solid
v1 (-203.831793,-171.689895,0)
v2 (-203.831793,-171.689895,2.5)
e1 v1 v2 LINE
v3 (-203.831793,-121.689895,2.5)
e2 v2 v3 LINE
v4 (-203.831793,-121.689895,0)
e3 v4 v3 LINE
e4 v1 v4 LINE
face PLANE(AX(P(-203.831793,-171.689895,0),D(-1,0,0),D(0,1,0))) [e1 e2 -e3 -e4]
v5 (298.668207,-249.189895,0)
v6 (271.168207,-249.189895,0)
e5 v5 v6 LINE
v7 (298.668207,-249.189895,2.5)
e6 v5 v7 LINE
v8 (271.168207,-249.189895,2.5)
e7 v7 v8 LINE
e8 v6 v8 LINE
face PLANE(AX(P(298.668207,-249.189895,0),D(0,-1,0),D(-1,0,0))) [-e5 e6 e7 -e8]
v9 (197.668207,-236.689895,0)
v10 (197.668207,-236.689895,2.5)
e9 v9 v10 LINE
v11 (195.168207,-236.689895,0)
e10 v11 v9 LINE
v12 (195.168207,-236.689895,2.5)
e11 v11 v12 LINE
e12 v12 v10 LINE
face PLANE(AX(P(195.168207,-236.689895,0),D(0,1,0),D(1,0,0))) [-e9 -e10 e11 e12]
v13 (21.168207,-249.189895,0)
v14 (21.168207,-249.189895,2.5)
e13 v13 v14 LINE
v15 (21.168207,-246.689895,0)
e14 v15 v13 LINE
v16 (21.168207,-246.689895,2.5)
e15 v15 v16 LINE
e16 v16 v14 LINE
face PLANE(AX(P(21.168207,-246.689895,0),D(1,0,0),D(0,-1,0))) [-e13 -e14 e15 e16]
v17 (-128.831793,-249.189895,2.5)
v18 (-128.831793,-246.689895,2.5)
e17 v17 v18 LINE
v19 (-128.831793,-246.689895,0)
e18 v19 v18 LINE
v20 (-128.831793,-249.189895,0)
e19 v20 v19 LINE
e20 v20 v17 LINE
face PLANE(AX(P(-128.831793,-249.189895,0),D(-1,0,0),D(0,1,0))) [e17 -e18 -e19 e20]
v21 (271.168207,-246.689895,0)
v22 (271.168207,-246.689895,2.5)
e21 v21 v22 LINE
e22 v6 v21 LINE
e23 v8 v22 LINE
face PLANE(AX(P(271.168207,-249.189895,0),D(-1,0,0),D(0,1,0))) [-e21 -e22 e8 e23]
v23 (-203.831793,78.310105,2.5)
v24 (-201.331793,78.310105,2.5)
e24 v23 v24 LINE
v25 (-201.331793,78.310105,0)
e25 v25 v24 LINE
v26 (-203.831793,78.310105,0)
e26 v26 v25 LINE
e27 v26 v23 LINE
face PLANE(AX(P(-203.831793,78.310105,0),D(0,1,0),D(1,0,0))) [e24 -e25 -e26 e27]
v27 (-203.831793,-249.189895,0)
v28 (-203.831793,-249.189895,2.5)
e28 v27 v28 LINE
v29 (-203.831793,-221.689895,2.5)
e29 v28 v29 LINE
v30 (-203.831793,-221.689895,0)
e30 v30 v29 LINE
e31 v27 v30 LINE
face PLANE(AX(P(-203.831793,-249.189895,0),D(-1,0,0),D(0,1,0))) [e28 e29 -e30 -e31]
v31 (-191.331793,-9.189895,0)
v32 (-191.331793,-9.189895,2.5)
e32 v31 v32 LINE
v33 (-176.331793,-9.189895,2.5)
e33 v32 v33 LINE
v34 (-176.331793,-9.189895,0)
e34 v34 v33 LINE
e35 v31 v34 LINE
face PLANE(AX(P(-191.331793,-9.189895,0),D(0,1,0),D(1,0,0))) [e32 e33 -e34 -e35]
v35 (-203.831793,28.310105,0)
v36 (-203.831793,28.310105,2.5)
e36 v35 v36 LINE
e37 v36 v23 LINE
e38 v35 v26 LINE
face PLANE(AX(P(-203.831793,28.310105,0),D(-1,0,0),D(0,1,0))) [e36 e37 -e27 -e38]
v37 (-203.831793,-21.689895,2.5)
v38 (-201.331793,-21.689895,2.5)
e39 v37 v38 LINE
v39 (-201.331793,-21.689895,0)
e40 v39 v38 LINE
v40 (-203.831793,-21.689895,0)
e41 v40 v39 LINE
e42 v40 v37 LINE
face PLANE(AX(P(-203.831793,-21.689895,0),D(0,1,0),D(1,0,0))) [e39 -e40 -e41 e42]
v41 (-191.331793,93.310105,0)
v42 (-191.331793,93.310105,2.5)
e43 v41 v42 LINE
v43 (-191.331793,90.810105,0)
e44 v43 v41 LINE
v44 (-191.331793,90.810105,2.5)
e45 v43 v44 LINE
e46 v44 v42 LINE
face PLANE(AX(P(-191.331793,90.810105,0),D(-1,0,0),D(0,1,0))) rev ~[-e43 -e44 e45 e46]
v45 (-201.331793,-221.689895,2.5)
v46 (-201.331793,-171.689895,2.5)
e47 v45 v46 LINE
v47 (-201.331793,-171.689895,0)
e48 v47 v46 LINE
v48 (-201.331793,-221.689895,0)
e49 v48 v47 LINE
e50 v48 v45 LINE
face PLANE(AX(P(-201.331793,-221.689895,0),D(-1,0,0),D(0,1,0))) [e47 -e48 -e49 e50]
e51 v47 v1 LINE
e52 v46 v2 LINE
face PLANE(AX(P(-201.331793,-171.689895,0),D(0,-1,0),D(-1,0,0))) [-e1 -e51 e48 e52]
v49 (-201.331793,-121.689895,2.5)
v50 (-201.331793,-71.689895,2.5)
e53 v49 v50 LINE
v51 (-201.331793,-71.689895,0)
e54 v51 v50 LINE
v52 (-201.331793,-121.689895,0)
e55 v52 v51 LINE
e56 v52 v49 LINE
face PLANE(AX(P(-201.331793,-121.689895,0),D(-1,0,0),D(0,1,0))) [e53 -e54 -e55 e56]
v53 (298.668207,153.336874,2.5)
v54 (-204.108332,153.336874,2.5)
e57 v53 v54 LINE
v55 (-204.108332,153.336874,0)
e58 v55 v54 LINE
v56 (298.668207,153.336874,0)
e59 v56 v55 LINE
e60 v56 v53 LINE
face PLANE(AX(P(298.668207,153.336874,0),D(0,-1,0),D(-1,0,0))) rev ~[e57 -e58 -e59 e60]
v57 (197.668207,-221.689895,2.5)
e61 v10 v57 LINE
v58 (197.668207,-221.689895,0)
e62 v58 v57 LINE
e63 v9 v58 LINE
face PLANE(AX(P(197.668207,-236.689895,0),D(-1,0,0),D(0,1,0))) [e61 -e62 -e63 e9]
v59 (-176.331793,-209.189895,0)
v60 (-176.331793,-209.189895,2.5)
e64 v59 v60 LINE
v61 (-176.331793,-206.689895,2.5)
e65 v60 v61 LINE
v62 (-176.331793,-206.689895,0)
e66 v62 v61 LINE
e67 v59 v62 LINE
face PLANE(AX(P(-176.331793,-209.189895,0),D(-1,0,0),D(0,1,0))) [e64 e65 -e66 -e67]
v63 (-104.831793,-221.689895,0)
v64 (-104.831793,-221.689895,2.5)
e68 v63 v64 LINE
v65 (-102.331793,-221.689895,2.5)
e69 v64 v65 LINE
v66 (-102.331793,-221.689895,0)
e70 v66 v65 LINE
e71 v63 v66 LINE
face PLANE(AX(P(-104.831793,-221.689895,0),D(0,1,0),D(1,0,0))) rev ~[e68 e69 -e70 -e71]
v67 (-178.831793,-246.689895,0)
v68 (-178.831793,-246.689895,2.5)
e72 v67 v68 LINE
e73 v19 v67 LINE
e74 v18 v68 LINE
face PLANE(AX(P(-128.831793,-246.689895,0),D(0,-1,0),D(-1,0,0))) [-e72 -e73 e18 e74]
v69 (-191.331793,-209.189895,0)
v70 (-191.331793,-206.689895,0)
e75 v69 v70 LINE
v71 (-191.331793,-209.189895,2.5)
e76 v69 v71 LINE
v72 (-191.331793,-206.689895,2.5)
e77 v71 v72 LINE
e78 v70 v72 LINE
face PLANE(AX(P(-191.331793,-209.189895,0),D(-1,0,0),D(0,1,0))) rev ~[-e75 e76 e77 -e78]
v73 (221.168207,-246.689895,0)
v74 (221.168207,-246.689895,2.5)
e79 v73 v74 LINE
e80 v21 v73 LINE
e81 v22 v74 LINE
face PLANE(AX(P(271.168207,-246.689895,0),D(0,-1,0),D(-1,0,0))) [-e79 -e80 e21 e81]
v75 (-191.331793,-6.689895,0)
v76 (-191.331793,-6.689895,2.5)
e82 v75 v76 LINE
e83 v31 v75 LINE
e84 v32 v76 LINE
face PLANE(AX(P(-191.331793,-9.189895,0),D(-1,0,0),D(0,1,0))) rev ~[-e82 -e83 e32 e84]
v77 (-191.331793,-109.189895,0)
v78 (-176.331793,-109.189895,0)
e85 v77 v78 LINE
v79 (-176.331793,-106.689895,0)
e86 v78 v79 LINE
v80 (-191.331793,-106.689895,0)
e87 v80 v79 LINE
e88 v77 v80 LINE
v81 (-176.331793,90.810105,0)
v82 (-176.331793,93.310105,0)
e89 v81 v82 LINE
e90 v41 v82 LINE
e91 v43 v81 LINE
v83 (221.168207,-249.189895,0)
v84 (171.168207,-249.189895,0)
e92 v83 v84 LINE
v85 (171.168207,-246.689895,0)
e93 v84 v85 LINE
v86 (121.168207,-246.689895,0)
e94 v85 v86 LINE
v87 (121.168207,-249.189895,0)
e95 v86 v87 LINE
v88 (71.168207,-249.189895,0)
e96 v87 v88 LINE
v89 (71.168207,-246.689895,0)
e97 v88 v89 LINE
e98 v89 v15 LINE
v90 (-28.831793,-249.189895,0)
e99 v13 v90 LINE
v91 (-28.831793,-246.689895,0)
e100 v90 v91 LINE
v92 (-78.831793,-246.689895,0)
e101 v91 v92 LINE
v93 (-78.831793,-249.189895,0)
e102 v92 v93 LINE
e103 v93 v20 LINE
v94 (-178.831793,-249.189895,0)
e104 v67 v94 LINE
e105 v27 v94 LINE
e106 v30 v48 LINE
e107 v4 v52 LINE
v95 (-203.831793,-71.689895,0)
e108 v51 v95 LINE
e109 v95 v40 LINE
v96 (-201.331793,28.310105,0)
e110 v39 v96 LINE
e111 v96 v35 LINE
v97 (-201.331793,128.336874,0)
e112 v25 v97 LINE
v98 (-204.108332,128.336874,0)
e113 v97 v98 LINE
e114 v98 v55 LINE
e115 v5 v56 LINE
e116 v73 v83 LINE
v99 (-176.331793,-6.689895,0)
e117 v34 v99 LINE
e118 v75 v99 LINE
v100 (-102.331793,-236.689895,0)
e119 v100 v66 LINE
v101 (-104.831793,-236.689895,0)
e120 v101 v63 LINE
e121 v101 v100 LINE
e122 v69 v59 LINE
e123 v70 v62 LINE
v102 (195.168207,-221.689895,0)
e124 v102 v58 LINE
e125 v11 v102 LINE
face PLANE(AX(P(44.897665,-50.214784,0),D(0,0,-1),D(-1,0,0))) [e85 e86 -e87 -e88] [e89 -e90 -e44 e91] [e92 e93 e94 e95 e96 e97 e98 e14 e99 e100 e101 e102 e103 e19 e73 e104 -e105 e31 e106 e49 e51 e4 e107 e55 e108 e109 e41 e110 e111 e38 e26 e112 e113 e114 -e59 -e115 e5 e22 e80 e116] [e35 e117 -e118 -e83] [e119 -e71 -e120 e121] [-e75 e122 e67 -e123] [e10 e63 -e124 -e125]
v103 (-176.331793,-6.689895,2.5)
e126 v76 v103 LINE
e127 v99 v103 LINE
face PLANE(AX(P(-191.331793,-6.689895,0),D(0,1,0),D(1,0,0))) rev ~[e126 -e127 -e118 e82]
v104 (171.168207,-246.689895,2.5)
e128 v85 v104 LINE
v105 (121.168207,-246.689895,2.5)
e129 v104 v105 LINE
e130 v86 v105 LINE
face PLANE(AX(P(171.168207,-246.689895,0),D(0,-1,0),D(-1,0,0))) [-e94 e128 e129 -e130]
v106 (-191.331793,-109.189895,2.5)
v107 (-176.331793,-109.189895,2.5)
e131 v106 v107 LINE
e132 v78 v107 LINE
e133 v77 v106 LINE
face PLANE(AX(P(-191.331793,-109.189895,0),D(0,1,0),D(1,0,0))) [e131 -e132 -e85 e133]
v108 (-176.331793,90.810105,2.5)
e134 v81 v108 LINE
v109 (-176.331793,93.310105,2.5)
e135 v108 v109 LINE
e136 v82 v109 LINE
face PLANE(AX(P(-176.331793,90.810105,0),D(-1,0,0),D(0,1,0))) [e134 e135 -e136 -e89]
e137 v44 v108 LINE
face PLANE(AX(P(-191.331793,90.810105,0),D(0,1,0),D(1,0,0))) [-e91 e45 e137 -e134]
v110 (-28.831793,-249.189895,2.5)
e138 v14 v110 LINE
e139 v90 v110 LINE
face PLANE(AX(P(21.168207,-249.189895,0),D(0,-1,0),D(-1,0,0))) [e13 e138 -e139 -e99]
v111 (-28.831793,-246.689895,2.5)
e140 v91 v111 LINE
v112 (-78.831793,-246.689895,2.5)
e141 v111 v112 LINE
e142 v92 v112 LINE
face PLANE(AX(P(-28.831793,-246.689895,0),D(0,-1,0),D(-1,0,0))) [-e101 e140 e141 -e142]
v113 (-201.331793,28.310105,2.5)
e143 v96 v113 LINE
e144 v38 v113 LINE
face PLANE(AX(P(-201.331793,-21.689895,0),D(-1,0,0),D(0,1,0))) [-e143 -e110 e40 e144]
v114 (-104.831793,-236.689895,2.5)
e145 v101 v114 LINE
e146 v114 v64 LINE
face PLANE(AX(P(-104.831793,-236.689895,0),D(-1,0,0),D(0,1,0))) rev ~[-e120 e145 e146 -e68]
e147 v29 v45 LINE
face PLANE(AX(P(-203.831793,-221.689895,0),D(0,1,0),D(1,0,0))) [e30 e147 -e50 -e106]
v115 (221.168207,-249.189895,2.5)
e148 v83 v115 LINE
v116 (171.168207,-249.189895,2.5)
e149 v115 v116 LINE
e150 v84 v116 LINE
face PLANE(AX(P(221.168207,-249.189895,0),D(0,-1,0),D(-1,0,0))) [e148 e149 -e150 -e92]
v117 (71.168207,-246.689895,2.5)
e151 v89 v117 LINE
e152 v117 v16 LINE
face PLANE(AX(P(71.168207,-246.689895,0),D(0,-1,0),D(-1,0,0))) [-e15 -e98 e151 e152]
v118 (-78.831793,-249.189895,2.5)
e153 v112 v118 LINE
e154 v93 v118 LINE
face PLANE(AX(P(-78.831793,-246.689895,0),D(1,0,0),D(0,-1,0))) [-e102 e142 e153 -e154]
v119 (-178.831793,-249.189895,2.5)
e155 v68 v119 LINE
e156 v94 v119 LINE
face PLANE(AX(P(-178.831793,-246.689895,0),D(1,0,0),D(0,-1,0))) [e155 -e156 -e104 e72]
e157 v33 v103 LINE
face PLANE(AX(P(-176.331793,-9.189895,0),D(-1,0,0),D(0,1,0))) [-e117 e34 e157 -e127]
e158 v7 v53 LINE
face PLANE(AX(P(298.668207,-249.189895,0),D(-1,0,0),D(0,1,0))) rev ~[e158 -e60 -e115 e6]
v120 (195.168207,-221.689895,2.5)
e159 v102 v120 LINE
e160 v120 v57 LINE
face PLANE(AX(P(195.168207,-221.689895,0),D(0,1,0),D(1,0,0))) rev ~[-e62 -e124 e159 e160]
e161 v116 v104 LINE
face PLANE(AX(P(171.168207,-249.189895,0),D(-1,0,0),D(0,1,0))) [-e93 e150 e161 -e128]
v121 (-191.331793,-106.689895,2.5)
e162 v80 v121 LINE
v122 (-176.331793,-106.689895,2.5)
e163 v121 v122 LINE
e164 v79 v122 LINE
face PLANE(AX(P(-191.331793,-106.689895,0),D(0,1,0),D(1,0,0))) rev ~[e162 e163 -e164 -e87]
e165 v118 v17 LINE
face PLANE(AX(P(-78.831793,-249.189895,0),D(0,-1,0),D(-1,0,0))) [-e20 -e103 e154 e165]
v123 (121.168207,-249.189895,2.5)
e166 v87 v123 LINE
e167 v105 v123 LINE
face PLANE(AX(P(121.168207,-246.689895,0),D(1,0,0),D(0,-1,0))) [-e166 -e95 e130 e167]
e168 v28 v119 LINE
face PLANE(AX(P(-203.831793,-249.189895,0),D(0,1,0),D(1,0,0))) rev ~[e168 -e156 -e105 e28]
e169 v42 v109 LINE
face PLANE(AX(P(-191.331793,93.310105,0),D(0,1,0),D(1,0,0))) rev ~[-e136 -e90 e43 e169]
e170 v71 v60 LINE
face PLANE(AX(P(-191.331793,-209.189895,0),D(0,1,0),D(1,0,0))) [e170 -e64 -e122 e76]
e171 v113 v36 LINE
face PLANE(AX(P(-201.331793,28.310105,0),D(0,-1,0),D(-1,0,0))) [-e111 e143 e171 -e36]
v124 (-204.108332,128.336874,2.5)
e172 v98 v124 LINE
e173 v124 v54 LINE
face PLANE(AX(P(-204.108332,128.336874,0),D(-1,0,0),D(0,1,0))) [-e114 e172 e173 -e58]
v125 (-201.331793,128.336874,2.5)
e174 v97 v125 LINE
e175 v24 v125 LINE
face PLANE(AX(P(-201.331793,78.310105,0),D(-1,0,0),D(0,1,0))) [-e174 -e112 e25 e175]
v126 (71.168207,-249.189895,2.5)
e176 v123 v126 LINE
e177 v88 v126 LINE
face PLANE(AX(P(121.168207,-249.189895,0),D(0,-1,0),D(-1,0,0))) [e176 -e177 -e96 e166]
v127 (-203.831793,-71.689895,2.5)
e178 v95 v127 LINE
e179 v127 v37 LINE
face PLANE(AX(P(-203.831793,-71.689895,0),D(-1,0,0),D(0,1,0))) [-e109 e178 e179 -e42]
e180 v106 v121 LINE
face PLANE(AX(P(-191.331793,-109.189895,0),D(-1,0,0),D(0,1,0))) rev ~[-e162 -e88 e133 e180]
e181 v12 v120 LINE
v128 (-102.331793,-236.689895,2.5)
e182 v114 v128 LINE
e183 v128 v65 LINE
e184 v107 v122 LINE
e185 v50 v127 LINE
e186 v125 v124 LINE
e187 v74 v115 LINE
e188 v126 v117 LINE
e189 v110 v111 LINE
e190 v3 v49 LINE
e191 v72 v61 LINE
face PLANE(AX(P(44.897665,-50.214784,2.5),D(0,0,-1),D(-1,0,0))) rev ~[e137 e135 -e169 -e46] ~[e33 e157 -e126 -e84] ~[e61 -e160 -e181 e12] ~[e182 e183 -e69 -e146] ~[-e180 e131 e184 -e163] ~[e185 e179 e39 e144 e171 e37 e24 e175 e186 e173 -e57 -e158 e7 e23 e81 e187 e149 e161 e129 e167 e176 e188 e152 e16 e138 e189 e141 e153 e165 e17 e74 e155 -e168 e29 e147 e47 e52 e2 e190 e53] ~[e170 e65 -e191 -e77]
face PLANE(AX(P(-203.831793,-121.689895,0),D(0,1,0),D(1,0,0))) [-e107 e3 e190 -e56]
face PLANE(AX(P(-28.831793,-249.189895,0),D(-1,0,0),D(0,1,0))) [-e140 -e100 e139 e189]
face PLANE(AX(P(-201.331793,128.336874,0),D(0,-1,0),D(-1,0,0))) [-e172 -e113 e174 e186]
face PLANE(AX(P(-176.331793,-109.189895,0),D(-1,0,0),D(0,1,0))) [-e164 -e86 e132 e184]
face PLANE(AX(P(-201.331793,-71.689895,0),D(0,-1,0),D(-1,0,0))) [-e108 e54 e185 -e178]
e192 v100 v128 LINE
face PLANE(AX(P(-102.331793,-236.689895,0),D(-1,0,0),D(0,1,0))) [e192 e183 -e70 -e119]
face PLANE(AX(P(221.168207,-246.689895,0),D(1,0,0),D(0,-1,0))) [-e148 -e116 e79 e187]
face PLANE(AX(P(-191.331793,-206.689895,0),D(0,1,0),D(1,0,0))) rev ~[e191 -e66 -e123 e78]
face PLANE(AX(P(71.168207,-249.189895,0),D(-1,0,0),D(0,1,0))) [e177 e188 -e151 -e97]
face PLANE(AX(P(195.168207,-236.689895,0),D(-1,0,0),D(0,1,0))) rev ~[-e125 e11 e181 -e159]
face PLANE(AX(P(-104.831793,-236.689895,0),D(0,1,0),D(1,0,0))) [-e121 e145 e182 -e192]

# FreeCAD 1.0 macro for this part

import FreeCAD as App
import Part
import Sketcher


def add_polygon(sketch, points):
    """Adds a closed chain of lines whose ends are joined by coincident constraints."""
    first, n = sketch.GeometryCount, len(points)
    for a, b in zip(points, points[1:] + points[:1]):
        sketch.addGeometry(Part.LineSegment(App.Vector(*a, 0), App.Vector(*b, 0)), False)
    for i in range(n):
        sketch.addConstraint(Sketcher.Constraint("Coincident", first + i, 2, first + (i + 1) % n, 1))

doc = App.newDocument("Part")
body = doc.addObject("PartDesign::Body", "Body")

sketch1 = body.newObject("Sketcher::SketchObject", "Sketch")
sketch1.AttachmentSupport = (doc.getObject("XY_Plane"), [""])
sketch1.MapMode = "FlatFace"
add_polygon(sketch1, [(298.7, 153.3), (-204.1, 153.3), (-204.1, 128.3), (-201.3, 128.3), (-201.3, 78.3), (-203.8, 78.3), (-203.8, 28.3), (-201.3, 28.3), (-201.3, -21.7), (-203.8, -21.7), (-203.8, -71.7), (-201.3, -71.7), (-201.3, -121.7), (-203.8, -121.7), (-203.8, -171.7), (-201.3, -171.7), (-201.3, -221.7), (-203.8, -221.7), (-203.8, -249.2), (-178.8, -249.2), (-178.8, -246.7), (-128.8, -246.7), (-128.8, -249.2), (-78.8, -249.2), (-78.8, -246.7), (-28.8, -246.7), (-28.8, -249.2), (21.2, -249.2), (21.2, -246.7), (71.2, -246.7), (71.2, -249.2), (121.2, -249.2), (121.2, -246.7), (171.2, -246.7), (171.2, -249.2), (221.2, -249.2), (221.2, -246.7), (271.2, -246.7), (271.2, -249.2), (298.7, -249.2)])
add_polygon(sketch1, [(195.2, -236.7), (195.2, -221.7), (197.7, -221.7), (197.7, -236.7)])
add_polygon(sketch1, [(-104.8, -236.7), (-104.8, -221.7), (-102.3, -221.7), (-102.3, -236.7)])
add_polygon(sketch1, [(-191.3, -209.2), (-191.3, -206.7), (-176.3, -206.7), (-176.3, -209.2)])
add_polygon(sketch1, [(-191.3, -109.2), (-191.3, -106.7), (-176.3, -106.7), (-176.3, -109.2)])
add_polygon(sketch1, [(-191.3, -9.2), (-191.3, -6.7), (-176.3, -6.7), (-176.3, -9.2)])
add_polygon(sketch1, [(-191.3, 90.8), (-191.3, 93.3), (-176.3, 93.3), (-176.3, 90.8)])
sketch1.addConstraint(Sketcher.Constraint("Horizontal", 0))
sketch1.addConstraint(Sketcher.Constraint("Vertical", 1))
sketch1.addConstraint(Sketcher.Constraint("Horizontal", 2))
sketch1.addConstraint(Sketcher.Constraint("Vertical", 3))
sketch1.addConstraint(Sketcher.Constraint("Horizontal", 4))
sketch1.addConstraint(Sketcher.Constraint("Vertical", 5))
sketch1.addConstraint(Sketcher.Constraint("Horizontal", 6))
sketch1.addConstraint(Sketcher.Constraint("Vertical", 7))
sketch1.addConstraint(Sketcher.Constraint("Horizontal", 8))
sketch1.addConstraint(Sketcher.Constraint("Vertical", 9))
sketch1.addConstraint(Sketcher.Constraint("Horizontal", 10))
sketch1.addConstraint(Sketcher.Constraint("Vertical", 11))
sketch1.addConstraint(Sketcher.Constraint("Horizontal", 12))
sketch1.addConstraint(Sketcher.Constraint("Vertical", 13))
sketch1.addConstraint(Sketcher.Constraint("Horizontal", 14))
sketch1.addConstraint(Sketcher.Constraint("Vertical", 15))
sketch1.addConstraint(Sketcher.Constraint("Horizontal", 16))
sketch1.addConstraint(Sketcher.Constraint("Vertical", 17))
sketch1.addConstraint(Sketcher.Constraint("Horizontal", 18))
sketch1.addConstraint(Sketcher.Constraint("Vertical", 19))
sketch1.addConstraint(Sketcher.Constraint("Horizontal", 20))
sketch1.addConstraint(Sketcher.Constraint("Vertical", 21))
sketch1.addConstraint(Sketcher.Constraint("Horizontal", 22))
sketch1.addConstraint(Sketcher.Constraint("Vertical", 23))
sketch1.addConstraint(Sketcher.Constraint("Horizontal", 24))
sketch1.addConstraint(Sketcher.Constraint("Vertical", 25))
sketch1.addConstraint(Sketcher.Constraint("Horizontal", 26))
sketch1.addConstraint(Sketcher.Constraint("Vertical", 27))
sketch1.addConstraint(Sketcher.Constraint("Horizontal", 28))
sketch1.addConstraint(Sketcher.Constraint("Vertical", 29))
sketch1.addConstraint(Sketcher.Constraint("Horizontal", 30))
sketch1.addConstraint(Sketcher.Constraint("Vertical", 31))
sketch1.addConstraint(Sketcher.Constraint("Horizontal", 32))
sketch1.addConstraint(Sketcher.Constraint("Vertical", 33))
sketch1.addConstraint(Sketcher.Constraint("Horizontal", 34))
sketch1.addConstraint(Sketcher.Constraint("Vertical", 35))
sketch1.addConstraint(Sketcher.Constraint("Horizontal", 36))
sketch1.addConstraint(Sketcher.Constraint("Vertical", 37))
sketch1.addConstraint(Sketcher.Constraint("Horizontal", 38))
sketch1.addConstraint(Sketcher.Constraint("Vertical", 39))
sketch1.addConstraint(Sketcher.Constraint("Vertical", 40))
sketch1.addConstraint(Sketcher.Constraint("Horizontal", 41))
sketch1.addConstraint(Sketcher.Constraint("Vertical", 42))
sketch1.addConstraint(Sketcher.Constraint("Horizontal", 43))
sketch1.addConstraint(Sketcher.Constraint("Vertical", 44))
sketch1.addConstraint(Sketcher.Constraint("Horizontal", 45))
sketch1.addConstraint(Sketcher.Constraint("Vertical", 46))
sketch1.addConstraint(Sketcher.Constraint("Horizontal", 47))
sketch1.addConstraint(Sketcher.Constraint("Vertical", 48))
sketch1.addConstraint(Sketcher.Constraint("Horizontal", 49))
sketch1.addConstraint(Sketcher.Constraint("Vertical", 50))
sketch1.addConstraint(Sketcher.Constraint("Horizontal", 51))
sketch1.addConstraint(Sketcher.Constraint("Vertical", 52))
sketch1.addConstraint(Sketcher.Constraint("Horizontal", 53))
sketch1.addConstraint(Sketcher.Constraint("Vertical", 54))
sketch1.addConstraint(Sketcher.Constraint("Horizontal", 55))
sketch1.addConstraint(Sketcher.Constraint("Vertical", 56))
sketch1.addConstraint(Sketcher.Constraint("Horizontal", 57))
sketch1.addConstraint(Sketcher.Constraint("Vertical", 58))
sketch1.addConstraint(Sketcher.Constraint("Horizontal", 59))
sketch1.addConstraint(Sketcher.Constraint("Vertical", 60))
sketch1.addConstraint(Sketcher.Constraint("Horizontal", 61))
sketch1.addConstraint(Sketcher.Constraint("Vertical", 62))
sketch1.addConstraint(Sketcher.Constraint("Horizontal", 63))
sketch1.addConstraint(Sketcher.Constraint("Horizontal", 18, 2, 21, 2))
sketch1.addConstraint(Sketcher.Constraint("Horizontal", 20, 2, 23, 2))
sketch1.addConstraint(Sketcher.Constraint("Horizontal", 22, 2, 25, 2))
sketch1.addConstraint(Sketcher.Constraint("Horizontal", 24, 2, 27, 2))
sketch1.addConstraint(Sketcher.Constraint("Horizontal", 26, 2, 29, 2))
sketch1.addConstraint(Sketcher.Constraint("Horizontal", 28, 2, 31, 2))
sketch1.addConstraint(Sketcher.Constraint("Horizontal", 30, 2, 33, 2))
sketch1.addConstraint(Sketcher.Constraint("Horizontal", 32, 2, 35, 2))
sketch1.addConstraint(Sketcher.Constraint("Horizontal", 34, 2, 37, 2))
sketch1.addConstraint(Sketcher.Constraint("Horizontal", 16, 2, 40, 2))
sketch1.addConstraint(Sketcher.Constraint("Horizontal", 41, 2, 44, 2))
sketch1.addConstraint(Sketcher.Constraint("Horizontal", 43, 2, 46, 2))
sketch1.addConstraint(Sketcher.Constraint("Vertical", 3, 2, 6, 2))
sketch1.addConstraint(Sketcher.Constraint("Vertical", 5, 2, 8, 2))
sketch1.addConstraint(Sketcher.Constraint("Vertical", 7, 2, 10, 2))
sketch1.addConstraint(Sketcher.Constraint("Vertical", 9, 2, 12, 2))
sketch1.addConstraint(Sketcher.Constraint("Vertical", 11, 2, 14, 2))
sketch1.addConstraint(Sketcher.Constraint("Vertical", 13, 2, 16, 2))
sketch1.addConstraint(Sketcher.Constraint("Vertical", 51, 2, 52, 2))
sketch1.addConstraint(Sketcher.Constraint("Vertical", 50, 2, 53, 2))
sketch1.addConstraint(Sketcher.Constraint("Vertical", 55, 2, 56, 2))
sketch1.addConstraint(Sketcher.Constraint("Vertical", 54, 2, 57, 2))
sketch1.addConstraint(Sketcher.Constraint("Vertical", 59, 2, 60, 2))
sketch1.addConstraint(Sketcher.Constraint("Vertical", 58, 2, 61, 2))
sketch1.addConstraint(Sketcher.Constraint("Equal", 20, 22))
sketch1.addConstraint(Sketcher.Constraint("Equal", 22, 24))
sketch1.addConstraint(Sketcher.Constraint("Equal", 24, 26))
sketch1.addConstraint(Sketcher.Constraint("Equal", 26, 28))
sketch1.addConstraint(Sketcher.Constraint("Equal", 28, 30))
sketch1.addConstraint(Sketcher.Constraint("Equal", 30, 32))
sketch1.addConstraint(Sketcher.Constraint("Equal", 32, 34))
sketch1.addConstraint(Sketcher.Constraint("Equal", 34, 36))
sketch1.addConstraint(Sketcher.Constraint("Equal", 16, 41))
sketch1.addConstraint(Sketcher.Constraint("Equal", 43, 45))
sketch1.addConstraint(Sketcher.Constraint("Equal", 18, 1))
sketch1.addConstraint(Sketcher.Constraint("Equal", 36, 5))
sketch1.addConstraint(Sketcher.Constraint("Equal", 5, 7))
sketch1.addConstraint(Sketcher.Constraint("Equal", 7, 9))
sketch1.addConstraint(Sketcher.Constraint("Equal", 9, 11))
sketch1.addConstraint(Sketcher.Constraint("Equal", 11, 13))
sketch1.addConstraint(Sketcher.Constraint("Equal", 13, 15))
sketch1.addConstraint(Sketcher.Constraint("Equal", 38, 17))
sketch1.addConstraint(Sketcher.Constraint("Equal", 47, 19))
sketch1.addConstraint(Sketcher.Constraint("Equal", 63, 40))
sketch1.addConstraint(Sketcher.Constraint("Equal", 37, 48))
sketch1.addConstraint(Sketcher.Constraint("Equal", 50, 52))
sketch1.addConstraint(Sketcher.Constraint("Equal", 54, 56))
sketch1.addConstraint(Sketcher.Constraint("Equal", 58, 60))
sketch1.addConstraint(Sketcher.Constraint("DistanceX", 18, 1, 18, 2, 25.0))
sketch1.addConstraint(Sketcher.Constraint("DistanceX", 20, 1, 20, 2, 50.0))
sketch1.addConstraint(Sketcher.Constraint("DistanceX", 49, 1, 49, 2, 15.0))
sketch1.addConstraint(Sketcher.Constraint("DistanceX", 4, 2, 4, 1, 2.5))
sketch1.addConstraint(Sketcher.Constraint("DistanceX", 38, 1, 38, 2, 27.5))
sketch1.addConstraint(Sketcher.Constraint("DistanceX", 0, 2, 0, 1, 502.776539))
sketch1.addConstraint(Sketcher.Constraint("DistanceY", 3, 2, 3, 1, 50.02677))
sketch1.addConstraint(Sketcher.Constraint("DistanceX", 0, 2, -1, 1, 204.108332))
sketch1.addConstraint(Sketcher.Constraint("DistanceY", -1, 1, 0, 2, 153.336874))
sketch1.addConstraint(Sketcher.Constraint("DistanceX", -1, 1, 40, 2, 195.168207))
sketch1.addConstraint(Sketcher.Constraint("DistanceX", 44, 2, -1, 1, 104.831793))
sketch1.addConstraint(Sketcher.Constraint("DistanceX", 48, 2, -1, 1, 191.331793))
sketch1.addConstraint(Sketcher.Constraint("DistanceY", 48, 2, -1, 1, 206.689895))
sketch1.addConstraint(Sketcher.Constraint("DistanceY", 52, 2, -1, 1, 106.689895))
sketch1.addConstraint(Sketcher.Constraint("DistanceY", 56, 2, -1, 1, 6.689895))
sketch1.addConstraint(Sketcher.Constraint("DistanceY", -1, 1, 60, 2, 93.310105))
pad1 = body.newObject("PartDesign::Pad", "Pad")
pad1.Profile = sketch1
pad1.Length = 2.5

doc.recompute()
